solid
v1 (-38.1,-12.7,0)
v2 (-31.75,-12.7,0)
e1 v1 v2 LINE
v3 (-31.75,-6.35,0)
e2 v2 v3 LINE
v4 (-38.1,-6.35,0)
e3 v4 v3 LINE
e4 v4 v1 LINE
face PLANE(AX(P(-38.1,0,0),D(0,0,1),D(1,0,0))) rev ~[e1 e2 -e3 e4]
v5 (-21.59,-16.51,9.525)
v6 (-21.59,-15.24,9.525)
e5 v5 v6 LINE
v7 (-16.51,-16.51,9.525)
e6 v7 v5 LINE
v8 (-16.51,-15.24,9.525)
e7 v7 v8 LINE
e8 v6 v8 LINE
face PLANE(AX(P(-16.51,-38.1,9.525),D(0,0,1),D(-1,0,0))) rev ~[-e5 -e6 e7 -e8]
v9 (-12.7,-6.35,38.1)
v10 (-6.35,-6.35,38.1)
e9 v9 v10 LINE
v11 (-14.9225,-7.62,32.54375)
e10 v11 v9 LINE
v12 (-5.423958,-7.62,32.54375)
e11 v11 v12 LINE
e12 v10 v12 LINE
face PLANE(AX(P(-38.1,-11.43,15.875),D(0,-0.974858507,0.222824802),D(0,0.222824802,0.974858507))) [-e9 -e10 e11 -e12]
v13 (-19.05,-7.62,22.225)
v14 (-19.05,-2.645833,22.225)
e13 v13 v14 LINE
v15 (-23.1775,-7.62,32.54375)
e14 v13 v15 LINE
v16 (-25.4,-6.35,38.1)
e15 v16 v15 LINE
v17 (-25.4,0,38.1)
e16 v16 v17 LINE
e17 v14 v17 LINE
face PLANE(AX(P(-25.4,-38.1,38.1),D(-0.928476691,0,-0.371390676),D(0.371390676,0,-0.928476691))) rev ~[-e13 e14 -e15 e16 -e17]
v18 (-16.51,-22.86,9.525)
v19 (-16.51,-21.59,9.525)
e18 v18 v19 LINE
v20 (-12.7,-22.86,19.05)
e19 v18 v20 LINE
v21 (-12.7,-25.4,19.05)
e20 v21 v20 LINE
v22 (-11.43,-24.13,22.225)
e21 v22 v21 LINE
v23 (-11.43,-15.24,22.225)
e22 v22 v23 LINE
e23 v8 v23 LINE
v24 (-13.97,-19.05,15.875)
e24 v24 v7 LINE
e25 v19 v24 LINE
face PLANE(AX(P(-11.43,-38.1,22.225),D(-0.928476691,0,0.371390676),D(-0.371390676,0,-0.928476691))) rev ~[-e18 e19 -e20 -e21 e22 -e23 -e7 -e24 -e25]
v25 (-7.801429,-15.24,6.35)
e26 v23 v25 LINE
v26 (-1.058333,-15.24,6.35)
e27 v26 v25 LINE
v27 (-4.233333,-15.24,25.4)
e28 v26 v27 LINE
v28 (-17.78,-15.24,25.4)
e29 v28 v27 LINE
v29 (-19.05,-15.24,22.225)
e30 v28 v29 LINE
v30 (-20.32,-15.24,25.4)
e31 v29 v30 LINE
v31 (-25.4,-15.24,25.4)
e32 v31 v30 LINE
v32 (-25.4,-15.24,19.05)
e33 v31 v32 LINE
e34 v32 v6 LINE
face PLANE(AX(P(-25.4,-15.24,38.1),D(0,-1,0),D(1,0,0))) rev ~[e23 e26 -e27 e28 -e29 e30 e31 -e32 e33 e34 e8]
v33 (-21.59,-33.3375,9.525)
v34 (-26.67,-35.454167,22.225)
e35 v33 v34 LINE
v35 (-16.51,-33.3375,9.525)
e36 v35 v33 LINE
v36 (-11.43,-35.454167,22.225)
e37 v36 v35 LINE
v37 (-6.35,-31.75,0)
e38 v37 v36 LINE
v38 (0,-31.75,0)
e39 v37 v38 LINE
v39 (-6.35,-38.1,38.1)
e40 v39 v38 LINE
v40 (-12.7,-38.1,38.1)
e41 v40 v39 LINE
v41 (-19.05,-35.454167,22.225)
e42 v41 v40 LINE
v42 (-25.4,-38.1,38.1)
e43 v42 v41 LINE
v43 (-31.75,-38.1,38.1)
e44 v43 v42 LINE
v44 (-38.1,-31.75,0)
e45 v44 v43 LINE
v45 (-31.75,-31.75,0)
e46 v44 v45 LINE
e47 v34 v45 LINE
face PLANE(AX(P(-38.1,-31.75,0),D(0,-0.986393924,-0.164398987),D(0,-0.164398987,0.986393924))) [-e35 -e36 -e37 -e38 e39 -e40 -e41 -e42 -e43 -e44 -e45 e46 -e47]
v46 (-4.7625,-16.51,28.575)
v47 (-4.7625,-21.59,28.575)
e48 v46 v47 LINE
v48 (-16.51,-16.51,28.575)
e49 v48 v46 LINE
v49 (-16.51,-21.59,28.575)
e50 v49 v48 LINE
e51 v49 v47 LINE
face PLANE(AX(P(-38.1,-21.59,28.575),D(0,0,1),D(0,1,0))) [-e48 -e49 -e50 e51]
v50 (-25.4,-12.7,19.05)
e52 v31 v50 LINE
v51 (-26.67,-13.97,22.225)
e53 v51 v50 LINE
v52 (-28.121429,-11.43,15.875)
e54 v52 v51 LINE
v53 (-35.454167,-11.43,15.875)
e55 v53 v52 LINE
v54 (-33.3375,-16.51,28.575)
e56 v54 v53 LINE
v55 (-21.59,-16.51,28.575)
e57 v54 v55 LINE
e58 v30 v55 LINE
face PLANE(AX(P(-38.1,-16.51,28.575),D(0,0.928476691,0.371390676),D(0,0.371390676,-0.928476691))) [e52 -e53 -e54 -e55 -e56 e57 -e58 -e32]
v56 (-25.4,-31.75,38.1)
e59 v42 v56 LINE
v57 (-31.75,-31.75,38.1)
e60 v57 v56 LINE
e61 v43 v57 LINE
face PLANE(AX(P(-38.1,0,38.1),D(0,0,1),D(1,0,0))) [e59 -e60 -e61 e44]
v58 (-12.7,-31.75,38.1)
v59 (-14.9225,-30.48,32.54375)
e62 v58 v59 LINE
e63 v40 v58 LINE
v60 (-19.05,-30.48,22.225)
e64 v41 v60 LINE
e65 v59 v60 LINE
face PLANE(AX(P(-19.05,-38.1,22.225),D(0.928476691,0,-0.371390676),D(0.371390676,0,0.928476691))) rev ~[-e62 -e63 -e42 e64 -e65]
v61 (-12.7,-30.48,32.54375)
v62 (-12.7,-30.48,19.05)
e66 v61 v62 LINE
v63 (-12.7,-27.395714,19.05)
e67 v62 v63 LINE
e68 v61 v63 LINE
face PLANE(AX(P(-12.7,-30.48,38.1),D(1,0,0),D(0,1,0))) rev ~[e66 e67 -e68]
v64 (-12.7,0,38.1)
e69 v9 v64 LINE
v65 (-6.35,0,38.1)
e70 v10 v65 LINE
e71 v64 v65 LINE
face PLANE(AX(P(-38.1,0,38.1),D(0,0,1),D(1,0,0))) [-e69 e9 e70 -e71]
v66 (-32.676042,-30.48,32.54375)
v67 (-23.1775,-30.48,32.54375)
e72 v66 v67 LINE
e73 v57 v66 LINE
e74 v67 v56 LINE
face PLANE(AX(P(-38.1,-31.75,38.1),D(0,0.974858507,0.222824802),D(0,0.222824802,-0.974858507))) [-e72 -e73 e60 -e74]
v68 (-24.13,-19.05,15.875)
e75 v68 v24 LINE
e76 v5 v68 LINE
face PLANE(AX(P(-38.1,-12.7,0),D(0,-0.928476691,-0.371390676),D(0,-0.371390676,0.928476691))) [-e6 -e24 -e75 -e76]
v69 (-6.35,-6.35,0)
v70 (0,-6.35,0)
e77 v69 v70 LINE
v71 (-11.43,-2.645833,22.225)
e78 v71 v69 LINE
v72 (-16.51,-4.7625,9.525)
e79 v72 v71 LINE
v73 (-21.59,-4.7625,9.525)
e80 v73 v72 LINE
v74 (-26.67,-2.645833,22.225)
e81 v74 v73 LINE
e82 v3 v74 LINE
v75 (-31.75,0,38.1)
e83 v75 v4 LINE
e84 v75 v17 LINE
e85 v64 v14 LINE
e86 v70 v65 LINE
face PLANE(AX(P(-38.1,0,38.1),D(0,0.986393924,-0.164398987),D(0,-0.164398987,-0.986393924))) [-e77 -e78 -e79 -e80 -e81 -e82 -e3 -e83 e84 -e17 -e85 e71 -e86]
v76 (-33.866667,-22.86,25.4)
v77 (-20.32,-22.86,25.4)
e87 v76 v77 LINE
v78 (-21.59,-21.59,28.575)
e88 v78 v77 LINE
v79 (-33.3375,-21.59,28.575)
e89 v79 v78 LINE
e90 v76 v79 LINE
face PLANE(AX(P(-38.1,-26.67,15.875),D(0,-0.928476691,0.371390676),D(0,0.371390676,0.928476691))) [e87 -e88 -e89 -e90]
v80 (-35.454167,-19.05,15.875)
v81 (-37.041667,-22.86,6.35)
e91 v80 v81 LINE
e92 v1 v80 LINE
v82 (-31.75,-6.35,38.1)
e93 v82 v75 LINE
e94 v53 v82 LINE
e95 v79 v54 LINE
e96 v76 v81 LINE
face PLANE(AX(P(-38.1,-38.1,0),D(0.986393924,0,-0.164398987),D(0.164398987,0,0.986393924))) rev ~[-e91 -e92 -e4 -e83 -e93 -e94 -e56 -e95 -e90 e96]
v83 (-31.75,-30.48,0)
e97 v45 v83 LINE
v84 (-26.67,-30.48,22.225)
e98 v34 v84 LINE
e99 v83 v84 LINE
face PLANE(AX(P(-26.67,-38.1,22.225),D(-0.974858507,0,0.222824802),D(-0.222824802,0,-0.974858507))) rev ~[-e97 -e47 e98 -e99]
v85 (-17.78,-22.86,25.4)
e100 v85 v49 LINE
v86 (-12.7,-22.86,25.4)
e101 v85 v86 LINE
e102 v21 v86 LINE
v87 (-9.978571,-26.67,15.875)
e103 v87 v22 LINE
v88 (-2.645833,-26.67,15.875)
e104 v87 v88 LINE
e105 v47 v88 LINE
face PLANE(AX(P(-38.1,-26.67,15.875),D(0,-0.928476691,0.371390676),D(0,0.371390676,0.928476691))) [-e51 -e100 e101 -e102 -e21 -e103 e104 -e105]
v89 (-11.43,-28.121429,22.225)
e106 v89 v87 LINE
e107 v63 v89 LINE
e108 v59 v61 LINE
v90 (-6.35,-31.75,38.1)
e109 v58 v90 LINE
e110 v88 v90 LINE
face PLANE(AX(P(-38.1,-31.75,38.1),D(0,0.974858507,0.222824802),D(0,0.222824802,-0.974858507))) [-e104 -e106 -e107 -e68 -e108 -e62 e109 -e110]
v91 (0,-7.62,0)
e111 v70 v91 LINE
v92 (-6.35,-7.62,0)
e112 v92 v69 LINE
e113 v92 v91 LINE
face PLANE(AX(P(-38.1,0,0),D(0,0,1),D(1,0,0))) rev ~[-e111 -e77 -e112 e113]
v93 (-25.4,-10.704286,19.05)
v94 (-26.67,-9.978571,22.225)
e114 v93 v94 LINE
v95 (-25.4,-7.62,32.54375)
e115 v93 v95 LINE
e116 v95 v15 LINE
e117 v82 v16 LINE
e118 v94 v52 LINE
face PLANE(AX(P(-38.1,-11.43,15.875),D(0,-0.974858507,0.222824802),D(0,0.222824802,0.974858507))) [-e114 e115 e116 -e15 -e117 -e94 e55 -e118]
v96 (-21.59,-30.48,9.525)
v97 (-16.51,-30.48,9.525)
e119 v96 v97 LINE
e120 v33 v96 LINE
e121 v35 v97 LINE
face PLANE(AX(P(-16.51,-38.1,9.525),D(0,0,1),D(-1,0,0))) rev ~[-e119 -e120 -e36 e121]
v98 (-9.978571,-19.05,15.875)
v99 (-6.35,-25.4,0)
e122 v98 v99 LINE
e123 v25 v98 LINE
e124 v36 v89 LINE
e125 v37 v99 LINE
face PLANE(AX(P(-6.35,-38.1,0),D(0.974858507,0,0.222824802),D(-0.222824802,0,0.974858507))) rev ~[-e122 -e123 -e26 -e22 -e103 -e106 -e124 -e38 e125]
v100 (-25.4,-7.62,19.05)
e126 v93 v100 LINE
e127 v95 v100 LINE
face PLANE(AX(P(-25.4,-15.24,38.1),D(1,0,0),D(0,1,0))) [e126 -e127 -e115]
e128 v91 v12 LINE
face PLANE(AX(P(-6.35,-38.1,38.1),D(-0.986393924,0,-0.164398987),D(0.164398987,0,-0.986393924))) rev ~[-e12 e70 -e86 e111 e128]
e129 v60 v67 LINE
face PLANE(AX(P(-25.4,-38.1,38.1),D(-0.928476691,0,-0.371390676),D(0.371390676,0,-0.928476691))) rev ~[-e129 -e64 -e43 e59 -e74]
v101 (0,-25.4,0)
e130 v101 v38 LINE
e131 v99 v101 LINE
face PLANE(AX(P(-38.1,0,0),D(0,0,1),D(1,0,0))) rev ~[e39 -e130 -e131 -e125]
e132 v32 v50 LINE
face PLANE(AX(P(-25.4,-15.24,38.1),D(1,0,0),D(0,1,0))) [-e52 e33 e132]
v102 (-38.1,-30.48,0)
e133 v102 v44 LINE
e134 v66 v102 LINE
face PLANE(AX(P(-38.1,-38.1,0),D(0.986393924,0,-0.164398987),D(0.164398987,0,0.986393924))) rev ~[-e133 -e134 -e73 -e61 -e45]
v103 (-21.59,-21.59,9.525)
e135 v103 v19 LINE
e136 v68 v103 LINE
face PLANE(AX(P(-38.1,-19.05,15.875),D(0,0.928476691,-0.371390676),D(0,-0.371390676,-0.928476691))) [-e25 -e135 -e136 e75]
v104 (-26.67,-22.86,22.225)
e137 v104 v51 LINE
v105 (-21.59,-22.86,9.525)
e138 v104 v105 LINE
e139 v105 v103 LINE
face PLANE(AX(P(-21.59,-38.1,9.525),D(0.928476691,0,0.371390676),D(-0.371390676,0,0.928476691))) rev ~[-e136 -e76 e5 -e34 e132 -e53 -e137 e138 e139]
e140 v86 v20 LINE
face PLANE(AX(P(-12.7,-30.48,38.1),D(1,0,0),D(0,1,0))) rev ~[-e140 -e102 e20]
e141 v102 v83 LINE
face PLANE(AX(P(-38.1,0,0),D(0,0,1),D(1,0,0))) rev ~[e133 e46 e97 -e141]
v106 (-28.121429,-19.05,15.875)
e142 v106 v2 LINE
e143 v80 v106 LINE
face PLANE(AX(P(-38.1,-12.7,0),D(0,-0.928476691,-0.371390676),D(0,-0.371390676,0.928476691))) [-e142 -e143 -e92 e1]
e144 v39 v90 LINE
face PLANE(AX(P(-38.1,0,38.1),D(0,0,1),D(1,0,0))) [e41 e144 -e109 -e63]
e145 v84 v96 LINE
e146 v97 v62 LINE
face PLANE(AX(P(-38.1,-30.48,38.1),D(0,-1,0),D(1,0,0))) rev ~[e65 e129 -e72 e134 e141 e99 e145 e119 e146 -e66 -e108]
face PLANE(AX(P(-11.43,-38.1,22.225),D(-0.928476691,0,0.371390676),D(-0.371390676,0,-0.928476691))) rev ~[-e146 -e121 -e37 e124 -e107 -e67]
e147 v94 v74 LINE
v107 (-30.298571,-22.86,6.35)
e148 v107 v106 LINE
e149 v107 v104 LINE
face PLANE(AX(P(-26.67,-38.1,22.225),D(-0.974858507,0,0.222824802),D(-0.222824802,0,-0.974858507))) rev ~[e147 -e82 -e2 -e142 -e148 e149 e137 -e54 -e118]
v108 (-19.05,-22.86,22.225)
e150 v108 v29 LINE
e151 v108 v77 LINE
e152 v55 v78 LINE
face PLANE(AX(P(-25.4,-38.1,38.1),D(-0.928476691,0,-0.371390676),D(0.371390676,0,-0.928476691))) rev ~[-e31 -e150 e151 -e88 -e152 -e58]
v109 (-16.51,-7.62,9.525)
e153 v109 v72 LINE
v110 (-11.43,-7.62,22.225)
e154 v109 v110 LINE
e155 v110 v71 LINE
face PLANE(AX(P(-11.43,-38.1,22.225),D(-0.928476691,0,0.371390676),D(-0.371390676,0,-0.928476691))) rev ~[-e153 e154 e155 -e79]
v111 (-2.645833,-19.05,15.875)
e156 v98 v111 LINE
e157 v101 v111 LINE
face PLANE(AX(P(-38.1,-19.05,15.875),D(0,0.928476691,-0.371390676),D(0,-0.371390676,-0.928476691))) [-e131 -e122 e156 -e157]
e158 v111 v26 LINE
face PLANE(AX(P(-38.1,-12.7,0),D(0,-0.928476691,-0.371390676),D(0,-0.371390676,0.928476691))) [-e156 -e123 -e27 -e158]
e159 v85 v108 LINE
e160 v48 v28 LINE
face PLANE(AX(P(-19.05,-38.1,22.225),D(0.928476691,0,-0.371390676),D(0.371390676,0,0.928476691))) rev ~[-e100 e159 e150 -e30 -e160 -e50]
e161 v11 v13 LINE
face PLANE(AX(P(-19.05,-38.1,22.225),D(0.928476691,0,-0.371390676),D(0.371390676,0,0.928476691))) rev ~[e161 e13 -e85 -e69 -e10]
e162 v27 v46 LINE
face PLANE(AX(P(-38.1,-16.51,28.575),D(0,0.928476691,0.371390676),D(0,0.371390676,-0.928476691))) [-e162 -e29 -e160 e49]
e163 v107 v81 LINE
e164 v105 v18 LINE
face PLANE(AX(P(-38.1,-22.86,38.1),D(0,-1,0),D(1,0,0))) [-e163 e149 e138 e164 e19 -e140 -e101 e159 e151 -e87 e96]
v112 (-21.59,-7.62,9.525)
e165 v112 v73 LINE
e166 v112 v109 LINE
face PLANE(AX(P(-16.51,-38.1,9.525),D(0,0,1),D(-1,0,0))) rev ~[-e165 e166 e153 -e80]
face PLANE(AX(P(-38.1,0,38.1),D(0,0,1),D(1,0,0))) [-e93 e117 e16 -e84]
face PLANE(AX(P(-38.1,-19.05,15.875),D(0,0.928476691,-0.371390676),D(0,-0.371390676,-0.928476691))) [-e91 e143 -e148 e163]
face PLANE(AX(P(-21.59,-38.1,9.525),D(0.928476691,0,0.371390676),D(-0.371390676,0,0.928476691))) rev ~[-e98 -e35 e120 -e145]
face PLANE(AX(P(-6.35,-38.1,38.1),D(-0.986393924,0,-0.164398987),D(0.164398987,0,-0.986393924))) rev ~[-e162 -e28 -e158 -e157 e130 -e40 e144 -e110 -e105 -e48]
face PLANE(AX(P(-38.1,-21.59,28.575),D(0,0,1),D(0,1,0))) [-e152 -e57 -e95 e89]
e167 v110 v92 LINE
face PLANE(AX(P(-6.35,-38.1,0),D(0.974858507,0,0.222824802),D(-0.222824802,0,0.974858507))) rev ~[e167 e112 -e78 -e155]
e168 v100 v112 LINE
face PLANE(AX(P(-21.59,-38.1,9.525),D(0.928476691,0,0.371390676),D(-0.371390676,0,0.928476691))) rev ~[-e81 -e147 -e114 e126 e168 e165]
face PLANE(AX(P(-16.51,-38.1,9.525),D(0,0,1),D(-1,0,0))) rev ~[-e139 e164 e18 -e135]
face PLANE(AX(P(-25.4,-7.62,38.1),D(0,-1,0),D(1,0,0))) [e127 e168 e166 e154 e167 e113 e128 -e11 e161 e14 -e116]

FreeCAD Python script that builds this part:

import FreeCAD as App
import Part
import Sketcher
Q = App.Units.Quantity


def add_polygon(sketch, points):
    """Adds a closed chain of lines whose ends are joined by coincident constraints."""
    first, n = sketch.GeometryCount, len(points)
    for a, b in zip(points, points[1:] + points[:1]):
        sketch.addGeometry(Part.LineSegment(App.Vector(*a, 0), App.Vector(*b, 0)), False)
    for i in range(n):
        sketch.addConstraint(Sketcher.Constraint("Coincident", first + i, 2, first + (i + 1) % n, 1))

doc = App.newDocument("Part")
body = doc.addObject("PartDesign::Body", "Body")

# Sketch on XZ plane
sketch1 = body.newObject("Sketcher::SketchObject", "Sketch")
sketch1.AttachmentSupport = (doc.getObject("XZ_Plane"), [""])
sketch1.MapMode = "FlatFace"
add_polygon(sketch1, [(-38.1, 38.1), (-38.1, 0), (0, 0), (0, 38.1)])  # lines 0-3
sketch1.addConstraint([
    Sketcher.Constraint("Vertical", 0),
    Sketcher.Constraint("Horizontal", 1),
    Sketcher.Constraint("Vertical", 2),
    Sketcher.Constraint("Horizontal", 3),
    Sketcher.Constraint("Coincident", 1, 2, -1, 1),
    Sketcher.Constraint("Equal", 3, 0),
    Sketcher.Constraint("DistanceX", 1, 1, 1, 2, Q("1.5 in")),
])
pad1 = body.newObject("PartDesign::Pad", "Pad")
pad1.Profile = sketch1
pad1.Length = Q("1.5 in")

# Sketch on YZ plane
sketch2 = body.newObject("Sketcher::SketchObject", "Sketch001")
sketch2.AttachmentSupport = (doc.getObject("YZ_Plane"), [""])
sketch2.MapMode = "FlatFace"
sketch2.AttachmentOffset = App.Placement(App.Vector(0, 0, -1.5 * 25.4), App.Rotation())
add_polygon(sketch2, [(-11.43, 15.875), (-6.35, 38.1), (-31.75, 38.1), (-26.67, 15.875), (-21.59, 28.575), (-16.51, 28.575)])  # lines 0-5
add_polygon(sketch2, [(0, 0), (0, 38.1), (-6.35, 0)])  # lines 6-8
add_polygon(sketch2, [(-25.4, 0), (-12.7, 0), (-19.05, 15.875)])  # lines 9-11
add_polygon(sketch2, [(-31.75, 0), (-38.1, 38.1), (-38.1, 0)])  # lines 12-14
sketch2.addConstraint([
    Sketcher.Constraint("Horizontal", 1),
    Sketcher.Constraint("Horizontal", 4),
    Sketcher.Constraint("Vertical", 6),
    Sketcher.Constraint("Horizontal", 8),
    Sketcher.Constraint("Horizontal", 9),
    Sketcher.Constraint("Vertical", 13),
    Sketcher.Constraint("Horizontal", 14),
    Sketcher.Constraint("Coincident", 8, 2, -1, 1),
    Sketcher.Constraint("PointOnObject", 9, 2, -1),
    Sketcher.Constraint("PointOnObject", 13, 2, -1),
    Sketcher.Constraint("Parallel", 5, 10),
    Sketcher.Constraint("Parallel", 3, 11),
    Sketcher.Constraint("Horizontal", 2, 2, 5, 2),
    Sketcher.Constraint("Horizontal", 1, 2, 6, 2),
    Sketcher.Constraint("Horizontal", 5, 2, 10, 2),
    Sketcher.Constraint("Horizontal", 6, 2, 12, 2),
    Sketcher.Constraint("Vertical", 0, 2, 7, 2),
    Sketcher.Constraint("Vertical", 1, 2, 14, 2),
    Sketcher.Constraint("Equal", 8, 14),
    Sketcher.Constraint("Equal", 0, 2),
    Sketcher.Constraint("Equal", 3, 5),
    Sketcher.Constraint("DistanceX", 1, 2, 1, 1, Q("1 in")),
    Sketcher.Constraint("DistanceX", 4, 1, 4, 2, Q("0.2 in")),
    Sketcher.Constraint("DistanceX", 9, 1, 9, 2, Q("0.5 in")),
    Sketcher.Constraint("DistanceY", 6, 1, 6, 2, Q("1.5 in")),
    Sketcher.Constraint("DistanceX", 11, 2, -1, 1, Q("1 in")),
    Sketcher.Constraint("DistanceX", 13, 2, 9, 2, Q("1 in")),
    Sketcher.Constraint("DistanceX", 1, 2, 2, 2, Q("0.2 in")),
    Sketcher.Constraint("DistanceY", 2, 2, 3, 2, Q("0.5 in")),
])
pocket1 = body.newObject("PartDesign::Pocket", "Pocket")
pocket1.Profile = sketch2
pocket1.Length = Q("1.5 in")
pocket1.Reversed = True

# Sketch on XZ plane
sketch3 = body.newObject("Sketcher::SketchObject", "Sketch002")
sketch3.AttachmentSupport = (doc.getObject("XZ_Plane"), [""])
sketch3.MapMode = "FlatFace"
sketch3.AttachmentOffset = App.Placement(App.Vector(0, 0, 1.5 * 25.4), App.Rotation())
add_polygon(sketch3, [(-26.67, 22.225), (-31.75, 0), (-6.35, 0), (-11.43, 22.225), (-16.51, 9.525), (-21.59, 9.525)])  # lines 0-5
add_polygon(sketch3, [(-31.75, 38.1), (-38.1, 38.1), (-38.1, 0)])  # lines 6-8
add_polygon(sketch3, [(-12.7, 38.1), (-25.4, 38.1), (-19.05, 22.225)])  # lines 9-11
add_polygon(sketch3, [(0, 38.1), (-6.35, 38.1), (0, 0)])  # lines 12-14
sketch3.addConstraint([
    Sketcher.Constraint("Horizontal", 1),
    Sketcher.Constraint("Horizontal", 4),
    Sketcher.Constraint("Horizontal", 6),
    Sketcher.Constraint("Vertical", 7),
    Sketcher.Constraint("Horizontal", 9),
    Sketcher.Constraint("Horizontal", 12),
    Sketcher.Constraint("Vertical", 14),
    Sketcher.Constraint("Coincident", 13, 2, -1, 1),
    Sketcher.Constraint("PointOnObject", 0, 2, -1),
    Sketcher.Constraint("PointOnObject", 7, 2, -1),
    Sketcher.Constraint("Parallel", 5, 10),
    Sketcher.Constraint("Parallel", 3, 11),
    Sketcher.Constraint("Horizontal", 2, 2, 5, 2),
    Sketcher.Constraint("Horizontal", 8, 2, 9, 2),
    Sketcher.Constraint("Horizontal", 5, 2, 10, 2),
    Sketcher.Constraint("Horizontal", 11, 2, 12, 2),
    Sketcher.Constraint("Vertical", 0, 2, 8, 2),
    Sketcher.Constraint("Vertical", 1, 2, 12, 2),
    Sketcher.Constraint("Equal", 6, 12),
    Sketcher.Constraint("Equal", 0, 2),
    Sketcher.Constraint("Equal", 3, 5),
    Sketcher.Constraint("DistanceX", 1, 1, 1, 2, Q("1 in")),
    Sketcher.Constraint("DistanceX", 4, 2, 4, 1, Q("0.2 in")),
    Sketcher.Constraint("DistanceX", 9, 2, 9, 1, Q("0.5 in")),
    Sketcher.Constraint("DistanceY", 7, 2, 7, 1, Q("1.5 in")),
    Sketcher.Constraint("DistanceX", 9, 2, -1, 1, Q("1 in")),
    Sketcher.Constraint("DistanceX", 6, 2, 6, 1, Q("0.25 in")),
    Sketcher.Constraint("DistanceX", 2, 2, 1, 2, Q("0.2 in")),
    Sketcher.Constraint("DistanceY", 3, 2, 2, 2, Q("0.5 in")),
])
pocket2 = body.newObject("PartDesign::Pocket", "Pocket001")
pocket2.Profile = sketch3
pocket2.Length = Q("1.5 in")

# Sketch on XY plane
sketch4 = body.newObject("Sketcher::SketchObject", "Sketch003")
sketch4.AttachmentSupport = (doc.getObject("XY_Plane"), [""])
sketch4.MapMode = "FlatFace"
sketch4.AttachmentOffset = App.Placement(App.Vector(0, 0, 1.5 * 25.4), App.Rotation())
add_polygon(sketch4, [(-25.4, -7.62), (-25.4, -15.24), (0, -15.24), (0, -7.62)])  # lines 0-3
add_polygon(sketch4, [(-38.1, -22.86), (-38.1, -30.48), (-12.7, -30.48), (-12.7, -22.86)])  # lines 4-7
sketch4.addConstraint([
    Sketcher.Constraint("Vertical", 0),
    Sketcher.Constraint("Horizontal", 1),
    Sketcher.Constraint("Vertical", 2),
    Sketcher.Constraint("Horizontal", 3),
    Sketcher.Constraint("Vertical", 4),
    Sketcher.Constraint("Horizontal", 5),
    Sketcher.Constraint("Vertical", 6),
    Sketcher.Constraint("Horizontal", 7),
    Sketcher.Constraint("PointOnObject", 1, 2, -2),
    Sketcher.Constraint("Equal", 3, 5),
    Sketcher.Constraint("Equal", 2, 4),
    Sketcher.Constraint("DistanceX", 1, 1, 1, 2, Q("1 in")),
    Sketcher.Constraint("DistanceY", 0, 2, 0, 1, Q("0.3 in")),
    Sketcher.Constraint("DistanceY", 0, 2, -1, 1, Q("0.6 in")),
    Sketcher.Constraint("DistanceX", 4, 2, -1, 1, Q("1.5 in")),
    Sketcher.Constraint("DistanceY", 4, 2, -1, 1, Q("1.2 in")),
])
pocket3 = body.newObject("PartDesign::Pocket", "Pocket002")
pocket3.Profile = sketch4
pocket3.Length = Q("1.5 in")

doc.recompute()
